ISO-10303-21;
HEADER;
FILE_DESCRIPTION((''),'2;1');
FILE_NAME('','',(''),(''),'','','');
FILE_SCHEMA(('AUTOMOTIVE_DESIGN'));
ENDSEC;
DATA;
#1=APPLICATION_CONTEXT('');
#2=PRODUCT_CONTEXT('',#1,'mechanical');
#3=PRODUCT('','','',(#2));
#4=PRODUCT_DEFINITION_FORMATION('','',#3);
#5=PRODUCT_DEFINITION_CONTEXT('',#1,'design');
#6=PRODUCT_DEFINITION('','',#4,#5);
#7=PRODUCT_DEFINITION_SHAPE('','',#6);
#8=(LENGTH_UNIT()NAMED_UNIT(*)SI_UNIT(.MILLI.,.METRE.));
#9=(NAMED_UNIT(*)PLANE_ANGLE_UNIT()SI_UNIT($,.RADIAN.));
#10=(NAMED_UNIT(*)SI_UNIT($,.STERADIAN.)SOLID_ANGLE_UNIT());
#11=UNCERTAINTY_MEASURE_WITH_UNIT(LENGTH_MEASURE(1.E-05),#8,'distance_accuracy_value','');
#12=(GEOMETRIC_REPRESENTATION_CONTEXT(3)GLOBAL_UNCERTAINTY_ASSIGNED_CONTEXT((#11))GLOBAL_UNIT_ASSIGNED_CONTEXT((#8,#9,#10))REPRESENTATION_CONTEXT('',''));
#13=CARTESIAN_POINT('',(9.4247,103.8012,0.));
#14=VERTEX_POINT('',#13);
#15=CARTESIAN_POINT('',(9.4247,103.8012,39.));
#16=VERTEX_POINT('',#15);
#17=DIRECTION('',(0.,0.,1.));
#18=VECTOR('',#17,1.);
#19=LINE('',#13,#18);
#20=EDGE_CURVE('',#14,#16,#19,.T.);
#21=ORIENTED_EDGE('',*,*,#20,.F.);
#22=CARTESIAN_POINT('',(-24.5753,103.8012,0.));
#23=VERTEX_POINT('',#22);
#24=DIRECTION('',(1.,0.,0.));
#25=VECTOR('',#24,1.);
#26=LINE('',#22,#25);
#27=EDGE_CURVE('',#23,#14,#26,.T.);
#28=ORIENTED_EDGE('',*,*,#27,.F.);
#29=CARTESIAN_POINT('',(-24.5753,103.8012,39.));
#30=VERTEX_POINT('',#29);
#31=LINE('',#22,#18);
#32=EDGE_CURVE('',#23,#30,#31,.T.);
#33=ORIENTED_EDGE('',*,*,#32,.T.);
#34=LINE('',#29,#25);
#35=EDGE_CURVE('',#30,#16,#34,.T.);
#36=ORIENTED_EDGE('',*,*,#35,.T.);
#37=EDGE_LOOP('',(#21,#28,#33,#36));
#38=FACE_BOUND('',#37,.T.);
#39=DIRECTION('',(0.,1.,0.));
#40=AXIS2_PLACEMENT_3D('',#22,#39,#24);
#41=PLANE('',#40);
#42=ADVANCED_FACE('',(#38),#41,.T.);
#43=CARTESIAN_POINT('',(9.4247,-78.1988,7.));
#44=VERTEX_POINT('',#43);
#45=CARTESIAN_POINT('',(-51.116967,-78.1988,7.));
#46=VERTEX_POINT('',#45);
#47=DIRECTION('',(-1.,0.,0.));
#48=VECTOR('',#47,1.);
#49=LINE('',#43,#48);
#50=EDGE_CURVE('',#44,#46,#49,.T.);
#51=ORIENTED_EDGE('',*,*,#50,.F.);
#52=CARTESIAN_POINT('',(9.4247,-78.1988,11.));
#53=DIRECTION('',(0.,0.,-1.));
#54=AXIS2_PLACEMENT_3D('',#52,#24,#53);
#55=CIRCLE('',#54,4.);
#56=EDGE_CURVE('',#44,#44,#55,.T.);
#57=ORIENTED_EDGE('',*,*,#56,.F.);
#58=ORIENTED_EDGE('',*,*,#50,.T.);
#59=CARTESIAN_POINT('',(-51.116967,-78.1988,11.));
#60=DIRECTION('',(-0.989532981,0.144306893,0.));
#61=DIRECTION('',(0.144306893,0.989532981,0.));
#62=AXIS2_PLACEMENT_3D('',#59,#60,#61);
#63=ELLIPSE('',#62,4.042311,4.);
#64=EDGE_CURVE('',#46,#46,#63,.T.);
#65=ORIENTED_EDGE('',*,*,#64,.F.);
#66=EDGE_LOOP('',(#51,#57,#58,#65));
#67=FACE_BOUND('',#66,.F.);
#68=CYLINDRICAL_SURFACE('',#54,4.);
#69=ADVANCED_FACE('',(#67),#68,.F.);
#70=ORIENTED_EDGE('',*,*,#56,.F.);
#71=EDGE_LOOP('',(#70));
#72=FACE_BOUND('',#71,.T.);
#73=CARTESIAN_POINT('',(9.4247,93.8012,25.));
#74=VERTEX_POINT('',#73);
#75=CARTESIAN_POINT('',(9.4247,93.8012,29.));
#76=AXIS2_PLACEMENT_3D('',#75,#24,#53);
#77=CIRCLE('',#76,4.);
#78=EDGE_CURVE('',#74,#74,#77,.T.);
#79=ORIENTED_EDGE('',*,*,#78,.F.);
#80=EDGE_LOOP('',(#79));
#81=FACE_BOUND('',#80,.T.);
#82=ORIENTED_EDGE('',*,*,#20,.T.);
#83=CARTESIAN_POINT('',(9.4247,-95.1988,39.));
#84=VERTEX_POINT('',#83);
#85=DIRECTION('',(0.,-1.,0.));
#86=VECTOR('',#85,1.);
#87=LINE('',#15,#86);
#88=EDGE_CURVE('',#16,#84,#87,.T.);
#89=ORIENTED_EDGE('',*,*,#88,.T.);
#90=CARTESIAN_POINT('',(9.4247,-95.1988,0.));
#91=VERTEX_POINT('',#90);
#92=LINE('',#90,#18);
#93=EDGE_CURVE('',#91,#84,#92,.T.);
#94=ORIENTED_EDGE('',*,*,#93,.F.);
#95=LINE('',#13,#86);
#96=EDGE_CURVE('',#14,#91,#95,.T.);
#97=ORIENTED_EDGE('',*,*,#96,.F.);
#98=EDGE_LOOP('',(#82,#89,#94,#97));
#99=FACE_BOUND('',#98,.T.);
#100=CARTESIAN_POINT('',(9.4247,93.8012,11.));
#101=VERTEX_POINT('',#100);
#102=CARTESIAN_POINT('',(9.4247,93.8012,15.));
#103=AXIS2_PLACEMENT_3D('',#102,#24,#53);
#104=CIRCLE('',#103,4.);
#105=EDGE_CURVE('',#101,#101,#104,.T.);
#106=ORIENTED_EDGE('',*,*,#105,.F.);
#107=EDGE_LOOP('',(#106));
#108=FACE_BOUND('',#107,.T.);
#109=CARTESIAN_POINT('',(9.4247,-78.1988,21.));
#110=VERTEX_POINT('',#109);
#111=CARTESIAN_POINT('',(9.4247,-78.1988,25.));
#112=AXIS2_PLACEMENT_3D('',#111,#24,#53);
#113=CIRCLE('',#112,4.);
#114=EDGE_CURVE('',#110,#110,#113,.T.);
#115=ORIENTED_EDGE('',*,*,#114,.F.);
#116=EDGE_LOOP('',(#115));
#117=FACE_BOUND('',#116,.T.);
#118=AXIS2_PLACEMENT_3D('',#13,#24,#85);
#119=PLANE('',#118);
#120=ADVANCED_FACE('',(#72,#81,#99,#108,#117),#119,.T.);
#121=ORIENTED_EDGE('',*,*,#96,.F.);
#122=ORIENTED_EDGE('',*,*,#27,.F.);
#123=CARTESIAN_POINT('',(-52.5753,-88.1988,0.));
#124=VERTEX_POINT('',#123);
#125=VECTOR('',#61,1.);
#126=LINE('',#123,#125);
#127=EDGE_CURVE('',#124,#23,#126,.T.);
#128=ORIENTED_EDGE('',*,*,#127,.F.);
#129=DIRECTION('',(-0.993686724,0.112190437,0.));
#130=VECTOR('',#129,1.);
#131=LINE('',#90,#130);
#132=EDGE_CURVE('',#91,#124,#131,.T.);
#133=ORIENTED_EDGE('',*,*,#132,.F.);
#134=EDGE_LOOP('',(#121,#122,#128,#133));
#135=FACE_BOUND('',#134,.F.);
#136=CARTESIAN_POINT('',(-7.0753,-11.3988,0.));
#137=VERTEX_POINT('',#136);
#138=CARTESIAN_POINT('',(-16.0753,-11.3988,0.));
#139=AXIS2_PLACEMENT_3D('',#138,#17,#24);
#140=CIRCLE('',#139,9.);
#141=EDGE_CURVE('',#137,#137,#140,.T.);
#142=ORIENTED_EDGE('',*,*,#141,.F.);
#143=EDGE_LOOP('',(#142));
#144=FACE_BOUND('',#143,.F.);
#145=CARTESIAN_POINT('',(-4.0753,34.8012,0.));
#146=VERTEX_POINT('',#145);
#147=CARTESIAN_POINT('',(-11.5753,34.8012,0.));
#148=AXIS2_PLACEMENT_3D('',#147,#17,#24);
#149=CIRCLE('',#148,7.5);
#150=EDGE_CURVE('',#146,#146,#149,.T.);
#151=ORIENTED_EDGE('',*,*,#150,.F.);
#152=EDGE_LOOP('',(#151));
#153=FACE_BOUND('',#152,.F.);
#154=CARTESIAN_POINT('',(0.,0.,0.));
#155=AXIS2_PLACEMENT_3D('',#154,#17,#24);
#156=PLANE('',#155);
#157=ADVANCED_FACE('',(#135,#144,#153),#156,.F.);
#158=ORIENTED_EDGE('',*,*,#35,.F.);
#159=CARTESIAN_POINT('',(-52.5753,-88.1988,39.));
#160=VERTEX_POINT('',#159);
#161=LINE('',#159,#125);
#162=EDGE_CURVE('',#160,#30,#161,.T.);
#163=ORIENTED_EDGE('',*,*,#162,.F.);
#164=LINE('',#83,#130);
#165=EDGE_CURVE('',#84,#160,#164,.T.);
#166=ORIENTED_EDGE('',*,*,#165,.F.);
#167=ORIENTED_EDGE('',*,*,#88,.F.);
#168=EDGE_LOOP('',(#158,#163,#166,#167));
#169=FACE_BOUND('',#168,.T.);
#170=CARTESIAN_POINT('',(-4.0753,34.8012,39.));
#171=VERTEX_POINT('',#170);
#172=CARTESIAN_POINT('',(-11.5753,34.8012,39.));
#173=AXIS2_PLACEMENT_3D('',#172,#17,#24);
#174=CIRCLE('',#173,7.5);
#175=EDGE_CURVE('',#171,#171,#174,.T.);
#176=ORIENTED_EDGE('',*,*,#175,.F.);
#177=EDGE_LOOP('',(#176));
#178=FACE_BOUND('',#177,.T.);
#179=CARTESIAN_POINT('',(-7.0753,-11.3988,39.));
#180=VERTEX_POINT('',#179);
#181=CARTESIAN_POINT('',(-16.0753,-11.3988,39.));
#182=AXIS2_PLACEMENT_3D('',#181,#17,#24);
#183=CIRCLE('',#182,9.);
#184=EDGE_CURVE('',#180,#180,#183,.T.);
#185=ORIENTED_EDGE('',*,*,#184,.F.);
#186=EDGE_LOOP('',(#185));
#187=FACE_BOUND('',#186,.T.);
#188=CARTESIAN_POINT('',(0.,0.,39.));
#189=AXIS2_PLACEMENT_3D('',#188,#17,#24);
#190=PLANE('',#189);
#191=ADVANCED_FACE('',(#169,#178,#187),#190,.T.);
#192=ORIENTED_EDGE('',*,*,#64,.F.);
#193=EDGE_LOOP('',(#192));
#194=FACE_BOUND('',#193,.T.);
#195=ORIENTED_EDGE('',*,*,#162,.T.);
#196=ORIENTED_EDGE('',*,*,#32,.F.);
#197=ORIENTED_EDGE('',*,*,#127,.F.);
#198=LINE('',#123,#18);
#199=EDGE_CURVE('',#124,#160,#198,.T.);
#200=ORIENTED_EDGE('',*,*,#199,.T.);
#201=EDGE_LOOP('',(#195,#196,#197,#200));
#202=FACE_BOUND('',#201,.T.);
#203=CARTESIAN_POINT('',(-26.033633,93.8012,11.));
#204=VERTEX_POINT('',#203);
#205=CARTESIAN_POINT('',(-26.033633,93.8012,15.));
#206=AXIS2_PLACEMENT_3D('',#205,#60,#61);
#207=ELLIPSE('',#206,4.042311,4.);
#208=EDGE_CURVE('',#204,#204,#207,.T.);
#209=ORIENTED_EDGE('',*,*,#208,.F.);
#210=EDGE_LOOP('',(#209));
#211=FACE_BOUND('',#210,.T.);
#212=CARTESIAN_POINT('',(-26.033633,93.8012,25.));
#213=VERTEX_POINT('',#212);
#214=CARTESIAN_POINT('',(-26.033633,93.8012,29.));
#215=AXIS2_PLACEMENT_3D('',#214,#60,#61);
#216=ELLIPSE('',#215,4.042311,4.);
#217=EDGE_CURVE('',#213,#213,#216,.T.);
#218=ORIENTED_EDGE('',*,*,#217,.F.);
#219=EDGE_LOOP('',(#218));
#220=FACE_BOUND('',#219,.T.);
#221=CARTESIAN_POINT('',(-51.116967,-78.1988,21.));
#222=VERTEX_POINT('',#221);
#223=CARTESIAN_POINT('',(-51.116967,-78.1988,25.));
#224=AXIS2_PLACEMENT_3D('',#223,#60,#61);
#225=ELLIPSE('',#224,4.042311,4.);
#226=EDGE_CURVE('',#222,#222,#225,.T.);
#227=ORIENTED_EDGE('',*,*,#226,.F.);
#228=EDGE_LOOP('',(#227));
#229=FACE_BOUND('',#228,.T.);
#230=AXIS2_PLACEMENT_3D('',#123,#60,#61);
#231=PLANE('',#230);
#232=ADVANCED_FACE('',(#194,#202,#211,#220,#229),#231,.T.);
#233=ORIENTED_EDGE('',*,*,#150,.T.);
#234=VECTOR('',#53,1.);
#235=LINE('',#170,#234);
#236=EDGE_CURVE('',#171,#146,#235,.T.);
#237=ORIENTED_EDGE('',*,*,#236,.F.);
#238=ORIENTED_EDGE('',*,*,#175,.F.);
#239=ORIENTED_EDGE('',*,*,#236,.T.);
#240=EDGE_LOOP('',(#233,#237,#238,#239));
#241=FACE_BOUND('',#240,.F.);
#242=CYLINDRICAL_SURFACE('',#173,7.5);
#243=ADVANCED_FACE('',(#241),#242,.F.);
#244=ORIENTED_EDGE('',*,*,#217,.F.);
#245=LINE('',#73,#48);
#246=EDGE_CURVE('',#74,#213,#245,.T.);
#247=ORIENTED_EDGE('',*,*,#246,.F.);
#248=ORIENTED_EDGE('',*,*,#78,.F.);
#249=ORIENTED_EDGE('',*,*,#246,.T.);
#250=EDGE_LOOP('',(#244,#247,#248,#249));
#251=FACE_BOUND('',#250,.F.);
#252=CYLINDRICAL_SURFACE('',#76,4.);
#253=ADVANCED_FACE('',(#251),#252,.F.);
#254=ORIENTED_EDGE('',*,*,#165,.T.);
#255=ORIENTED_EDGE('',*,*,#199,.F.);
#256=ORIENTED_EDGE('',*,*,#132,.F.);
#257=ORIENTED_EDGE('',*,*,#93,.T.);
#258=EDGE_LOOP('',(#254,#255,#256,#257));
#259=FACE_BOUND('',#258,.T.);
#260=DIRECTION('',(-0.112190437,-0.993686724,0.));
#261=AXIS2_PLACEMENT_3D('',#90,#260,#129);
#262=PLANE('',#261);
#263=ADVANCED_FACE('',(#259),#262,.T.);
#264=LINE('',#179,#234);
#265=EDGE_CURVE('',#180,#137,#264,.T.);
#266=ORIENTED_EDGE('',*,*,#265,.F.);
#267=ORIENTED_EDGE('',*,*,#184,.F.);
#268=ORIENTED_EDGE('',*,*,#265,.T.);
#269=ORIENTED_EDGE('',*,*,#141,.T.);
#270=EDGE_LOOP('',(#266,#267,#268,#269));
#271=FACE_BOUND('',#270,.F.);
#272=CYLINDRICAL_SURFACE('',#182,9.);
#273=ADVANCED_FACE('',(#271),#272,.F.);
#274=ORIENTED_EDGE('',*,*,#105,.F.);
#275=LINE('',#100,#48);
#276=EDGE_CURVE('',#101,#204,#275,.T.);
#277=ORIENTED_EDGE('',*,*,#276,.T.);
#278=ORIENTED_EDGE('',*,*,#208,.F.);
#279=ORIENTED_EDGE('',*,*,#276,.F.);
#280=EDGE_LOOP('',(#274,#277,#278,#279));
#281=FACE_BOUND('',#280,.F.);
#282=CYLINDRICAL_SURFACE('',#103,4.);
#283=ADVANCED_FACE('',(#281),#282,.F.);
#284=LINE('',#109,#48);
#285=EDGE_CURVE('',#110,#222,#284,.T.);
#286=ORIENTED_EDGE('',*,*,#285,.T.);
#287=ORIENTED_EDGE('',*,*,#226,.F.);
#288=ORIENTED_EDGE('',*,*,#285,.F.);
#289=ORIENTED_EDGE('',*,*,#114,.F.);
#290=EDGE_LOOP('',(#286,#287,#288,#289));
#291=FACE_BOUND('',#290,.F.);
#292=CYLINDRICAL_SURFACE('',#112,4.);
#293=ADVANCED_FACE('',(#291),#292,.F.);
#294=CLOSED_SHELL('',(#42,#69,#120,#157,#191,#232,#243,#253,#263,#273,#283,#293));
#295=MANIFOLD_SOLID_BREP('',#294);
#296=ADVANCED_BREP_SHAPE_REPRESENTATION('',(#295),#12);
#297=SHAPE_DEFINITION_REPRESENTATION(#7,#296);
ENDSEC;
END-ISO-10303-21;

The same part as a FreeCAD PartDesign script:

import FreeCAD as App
import Part
import Sketcher

V = App.Vector

doc = App.newDocument("Part")
params = doc.addObject("Spreadsheet::Sheet", "Params")
for row, (alias, value) in enumerate([
    ("sketch1_width", "34 mm"),
    ("sketch1_height", "199 mm"),
    ("pad1_length", "39 mm"),
    ("sketch2_diameter", "8 mm"),
    ("sketch3_diameter", "18 mm"),
    ("sketch3_diameter2", "15 mm"),
], start=1):
    params.set(f"A{row}", alias)
    params.set(f"B{row}", "=" + value)
    params.setAlias(f"B{row}", alias)

body = doc.addObject("PartDesign::Body", "Body")

# Sketch on XY plane
sketch1 = body.newObject("Sketcher::SketchObject", "Sketch")
sketch1.AttachmentSupport = (doc.getObject("XY_Plane"), [""])
sketch1.MapMode = "FlatFace"
sketch1.addGeometry([
    Part.LineSegment(V(9, -95, 0), V(9, 104, 0)),
    Part.LineSegment(V(9, 104, 0), V(-25, 104, 0)),
    Part.LineSegment(V(-25, 104, 0), V(-53, -88, 0)),
    Part.LineSegment(V(-53, -88, 0), V(9, -95, 0)),
], False)
sketch1.addConstraint([
    Sketcher.Constraint("Coincident", 0, 2, 1, 1),
    Sketcher.Constraint("Coincident", 1, 2, 2, 1),
    Sketcher.Constraint("Coincident", 2, 2, 3, 1),
    Sketcher.Constraint("Coincident", 3, 2, 0, 1),
    Sketcher.Constraint("Vertical", 0),
    Sketcher.Constraint("Horizontal", 1),
    Sketcher.Constraint("DistanceX", 1, 2, 1, 1, 34.0),
    Sketcher.Constraint("DistanceY", 0, 1, 0, 2, 199.0),
    Sketcher.Constraint("DistanceX", 2, 2, 0, 2, 62.0),
    Sketcher.Constraint("DistanceY", 3, 2, 2, 2, 7.0),
    Sketcher.Constraint("DistanceX", -1, 1, 0, 2, 9.4247),
    Sketcher.Constraint("DistanceY", -1, 1, 0, 2, 103.8012),
])
sketch1.setExpression("Constraints[6]", "Params.sketch1_width")
sketch1.setExpression("Constraints[7]", "Params.sketch1_height")
pad1 = body.newObject("PartDesign::Pad", "Pad")
pad1.Profile = sketch1
pad1.setExpression("Length", "Params.pad1_length")

# Sketch on YZ plane
sketch2 = body.newObject("Sketcher::SketchObject", "Sketch001")
sketch2.AttachmentSupport = (doc.getObject("YZ_Plane"), [""])
sketch2.MapMode = "FlatFace"
sketch2.AttachmentOffset = App.Placement(V(0, 0, 9.4247), App.Rotation())
sketch2.addGeometry([
    Part.Circle(V(-78.2, 11, 0), V(0, 0, 1), 4),
    Part.Circle(V(-78.2, 25, 0), V(0, 0, 1), 4),
    Part.Circle(V(93.8, 15, 0), V(0, 0, 1), 4),
    Part.Circle(V(93.8, 29, 0), V(0, 0, 1), 4),
], False)
sketch2.addConstraint([
    Sketcher.Constraint("Equal", 0, 1),
    Sketcher.Constraint("Equal", 1, 2),
    Sketcher.Constraint("Equal", 2, 3),
    Sketcher.Constraint("Vertical", 0, 3, 1, 3),
    Sketcher.Constraint("Vertical", 2, 3, 3, 3),
    Sketcher.Constraint("Diameter", 0, 8.0),
    Sketcher.Constraint("DistanceY", 0, 3, 1, 3, 14.0),
    Sketcher.Constraint("DistanceX", 0, 3, 2, 3, 172.0),
    Sketcher.Constraint("DistanceY", 2, 3, 1, 3, 10.0),
    Sketcher.Constraint("DistanceY", 2, 3, 3, 3, 14.0),
    Sketcher.Constraint("DistanceY", -1, 1, 0, 3, 11.0),
    Sketcher.Constraint("DistanceX", 0, 3, -1, 1, 78.1988),
])
sketch2.setExpression("Constraints[5]", "Params.sketch2_diameter")
pocket1 = body.newObject("PartDesign::Pocket", "Pocket")
pocket1.Profile = sketch2
pocket1.Type = "ThroughAll"

# Sketch on XY plane
sketch3 = body.newObject("Sketcher::SketchObject", "Sketch002")
sketch3.AttachmentSupport = (doc.getObject("XY_Plane"), [""])
sketch3.MapMode = "FlatFace"
sketch3.AttachmentOffset = App.Placement(V(0, 0, 39), App.Rotation())
sketch3.addGeometry([
    Part.Circle(V(-16, -11, 0), V(0, 0, 1), 9),
    Part.Circle(V(-12, 35, 0), V(0, 0, 1), 8),
], False)
sketch3.addConstraint([
    Sketcher.Constraint("Diameter", 0, 18.0),
    Sketcher.Constraint("Diameter", 1, 15.0),
    Sketcher.Constraint("DistanceX", 0, 3, 1, 3, 4.5),
    Sketcher.Constraint("DistanceY", 0, 3, 1, 3, 46.2),
    Sketcher.Constraint("DistanceX", 0, 3, -1, 1, 16.0753),
    Sketcher.Constraint("DistanceY", 0, 3, -1, 1, 11.3988),
])
sketch3.setExpression("Constraints[0]", "Params.sketch3_diameter")
sketch3.setExpression("Constraints[1]", "Params.sketch3_diameter2")
pocket2 = body.newObject("PartDesign::Pocket", "Pocket001")
pocket2.Profile = sketch3
pocket2.Type = "ThroughAll"

doc.recompute()
